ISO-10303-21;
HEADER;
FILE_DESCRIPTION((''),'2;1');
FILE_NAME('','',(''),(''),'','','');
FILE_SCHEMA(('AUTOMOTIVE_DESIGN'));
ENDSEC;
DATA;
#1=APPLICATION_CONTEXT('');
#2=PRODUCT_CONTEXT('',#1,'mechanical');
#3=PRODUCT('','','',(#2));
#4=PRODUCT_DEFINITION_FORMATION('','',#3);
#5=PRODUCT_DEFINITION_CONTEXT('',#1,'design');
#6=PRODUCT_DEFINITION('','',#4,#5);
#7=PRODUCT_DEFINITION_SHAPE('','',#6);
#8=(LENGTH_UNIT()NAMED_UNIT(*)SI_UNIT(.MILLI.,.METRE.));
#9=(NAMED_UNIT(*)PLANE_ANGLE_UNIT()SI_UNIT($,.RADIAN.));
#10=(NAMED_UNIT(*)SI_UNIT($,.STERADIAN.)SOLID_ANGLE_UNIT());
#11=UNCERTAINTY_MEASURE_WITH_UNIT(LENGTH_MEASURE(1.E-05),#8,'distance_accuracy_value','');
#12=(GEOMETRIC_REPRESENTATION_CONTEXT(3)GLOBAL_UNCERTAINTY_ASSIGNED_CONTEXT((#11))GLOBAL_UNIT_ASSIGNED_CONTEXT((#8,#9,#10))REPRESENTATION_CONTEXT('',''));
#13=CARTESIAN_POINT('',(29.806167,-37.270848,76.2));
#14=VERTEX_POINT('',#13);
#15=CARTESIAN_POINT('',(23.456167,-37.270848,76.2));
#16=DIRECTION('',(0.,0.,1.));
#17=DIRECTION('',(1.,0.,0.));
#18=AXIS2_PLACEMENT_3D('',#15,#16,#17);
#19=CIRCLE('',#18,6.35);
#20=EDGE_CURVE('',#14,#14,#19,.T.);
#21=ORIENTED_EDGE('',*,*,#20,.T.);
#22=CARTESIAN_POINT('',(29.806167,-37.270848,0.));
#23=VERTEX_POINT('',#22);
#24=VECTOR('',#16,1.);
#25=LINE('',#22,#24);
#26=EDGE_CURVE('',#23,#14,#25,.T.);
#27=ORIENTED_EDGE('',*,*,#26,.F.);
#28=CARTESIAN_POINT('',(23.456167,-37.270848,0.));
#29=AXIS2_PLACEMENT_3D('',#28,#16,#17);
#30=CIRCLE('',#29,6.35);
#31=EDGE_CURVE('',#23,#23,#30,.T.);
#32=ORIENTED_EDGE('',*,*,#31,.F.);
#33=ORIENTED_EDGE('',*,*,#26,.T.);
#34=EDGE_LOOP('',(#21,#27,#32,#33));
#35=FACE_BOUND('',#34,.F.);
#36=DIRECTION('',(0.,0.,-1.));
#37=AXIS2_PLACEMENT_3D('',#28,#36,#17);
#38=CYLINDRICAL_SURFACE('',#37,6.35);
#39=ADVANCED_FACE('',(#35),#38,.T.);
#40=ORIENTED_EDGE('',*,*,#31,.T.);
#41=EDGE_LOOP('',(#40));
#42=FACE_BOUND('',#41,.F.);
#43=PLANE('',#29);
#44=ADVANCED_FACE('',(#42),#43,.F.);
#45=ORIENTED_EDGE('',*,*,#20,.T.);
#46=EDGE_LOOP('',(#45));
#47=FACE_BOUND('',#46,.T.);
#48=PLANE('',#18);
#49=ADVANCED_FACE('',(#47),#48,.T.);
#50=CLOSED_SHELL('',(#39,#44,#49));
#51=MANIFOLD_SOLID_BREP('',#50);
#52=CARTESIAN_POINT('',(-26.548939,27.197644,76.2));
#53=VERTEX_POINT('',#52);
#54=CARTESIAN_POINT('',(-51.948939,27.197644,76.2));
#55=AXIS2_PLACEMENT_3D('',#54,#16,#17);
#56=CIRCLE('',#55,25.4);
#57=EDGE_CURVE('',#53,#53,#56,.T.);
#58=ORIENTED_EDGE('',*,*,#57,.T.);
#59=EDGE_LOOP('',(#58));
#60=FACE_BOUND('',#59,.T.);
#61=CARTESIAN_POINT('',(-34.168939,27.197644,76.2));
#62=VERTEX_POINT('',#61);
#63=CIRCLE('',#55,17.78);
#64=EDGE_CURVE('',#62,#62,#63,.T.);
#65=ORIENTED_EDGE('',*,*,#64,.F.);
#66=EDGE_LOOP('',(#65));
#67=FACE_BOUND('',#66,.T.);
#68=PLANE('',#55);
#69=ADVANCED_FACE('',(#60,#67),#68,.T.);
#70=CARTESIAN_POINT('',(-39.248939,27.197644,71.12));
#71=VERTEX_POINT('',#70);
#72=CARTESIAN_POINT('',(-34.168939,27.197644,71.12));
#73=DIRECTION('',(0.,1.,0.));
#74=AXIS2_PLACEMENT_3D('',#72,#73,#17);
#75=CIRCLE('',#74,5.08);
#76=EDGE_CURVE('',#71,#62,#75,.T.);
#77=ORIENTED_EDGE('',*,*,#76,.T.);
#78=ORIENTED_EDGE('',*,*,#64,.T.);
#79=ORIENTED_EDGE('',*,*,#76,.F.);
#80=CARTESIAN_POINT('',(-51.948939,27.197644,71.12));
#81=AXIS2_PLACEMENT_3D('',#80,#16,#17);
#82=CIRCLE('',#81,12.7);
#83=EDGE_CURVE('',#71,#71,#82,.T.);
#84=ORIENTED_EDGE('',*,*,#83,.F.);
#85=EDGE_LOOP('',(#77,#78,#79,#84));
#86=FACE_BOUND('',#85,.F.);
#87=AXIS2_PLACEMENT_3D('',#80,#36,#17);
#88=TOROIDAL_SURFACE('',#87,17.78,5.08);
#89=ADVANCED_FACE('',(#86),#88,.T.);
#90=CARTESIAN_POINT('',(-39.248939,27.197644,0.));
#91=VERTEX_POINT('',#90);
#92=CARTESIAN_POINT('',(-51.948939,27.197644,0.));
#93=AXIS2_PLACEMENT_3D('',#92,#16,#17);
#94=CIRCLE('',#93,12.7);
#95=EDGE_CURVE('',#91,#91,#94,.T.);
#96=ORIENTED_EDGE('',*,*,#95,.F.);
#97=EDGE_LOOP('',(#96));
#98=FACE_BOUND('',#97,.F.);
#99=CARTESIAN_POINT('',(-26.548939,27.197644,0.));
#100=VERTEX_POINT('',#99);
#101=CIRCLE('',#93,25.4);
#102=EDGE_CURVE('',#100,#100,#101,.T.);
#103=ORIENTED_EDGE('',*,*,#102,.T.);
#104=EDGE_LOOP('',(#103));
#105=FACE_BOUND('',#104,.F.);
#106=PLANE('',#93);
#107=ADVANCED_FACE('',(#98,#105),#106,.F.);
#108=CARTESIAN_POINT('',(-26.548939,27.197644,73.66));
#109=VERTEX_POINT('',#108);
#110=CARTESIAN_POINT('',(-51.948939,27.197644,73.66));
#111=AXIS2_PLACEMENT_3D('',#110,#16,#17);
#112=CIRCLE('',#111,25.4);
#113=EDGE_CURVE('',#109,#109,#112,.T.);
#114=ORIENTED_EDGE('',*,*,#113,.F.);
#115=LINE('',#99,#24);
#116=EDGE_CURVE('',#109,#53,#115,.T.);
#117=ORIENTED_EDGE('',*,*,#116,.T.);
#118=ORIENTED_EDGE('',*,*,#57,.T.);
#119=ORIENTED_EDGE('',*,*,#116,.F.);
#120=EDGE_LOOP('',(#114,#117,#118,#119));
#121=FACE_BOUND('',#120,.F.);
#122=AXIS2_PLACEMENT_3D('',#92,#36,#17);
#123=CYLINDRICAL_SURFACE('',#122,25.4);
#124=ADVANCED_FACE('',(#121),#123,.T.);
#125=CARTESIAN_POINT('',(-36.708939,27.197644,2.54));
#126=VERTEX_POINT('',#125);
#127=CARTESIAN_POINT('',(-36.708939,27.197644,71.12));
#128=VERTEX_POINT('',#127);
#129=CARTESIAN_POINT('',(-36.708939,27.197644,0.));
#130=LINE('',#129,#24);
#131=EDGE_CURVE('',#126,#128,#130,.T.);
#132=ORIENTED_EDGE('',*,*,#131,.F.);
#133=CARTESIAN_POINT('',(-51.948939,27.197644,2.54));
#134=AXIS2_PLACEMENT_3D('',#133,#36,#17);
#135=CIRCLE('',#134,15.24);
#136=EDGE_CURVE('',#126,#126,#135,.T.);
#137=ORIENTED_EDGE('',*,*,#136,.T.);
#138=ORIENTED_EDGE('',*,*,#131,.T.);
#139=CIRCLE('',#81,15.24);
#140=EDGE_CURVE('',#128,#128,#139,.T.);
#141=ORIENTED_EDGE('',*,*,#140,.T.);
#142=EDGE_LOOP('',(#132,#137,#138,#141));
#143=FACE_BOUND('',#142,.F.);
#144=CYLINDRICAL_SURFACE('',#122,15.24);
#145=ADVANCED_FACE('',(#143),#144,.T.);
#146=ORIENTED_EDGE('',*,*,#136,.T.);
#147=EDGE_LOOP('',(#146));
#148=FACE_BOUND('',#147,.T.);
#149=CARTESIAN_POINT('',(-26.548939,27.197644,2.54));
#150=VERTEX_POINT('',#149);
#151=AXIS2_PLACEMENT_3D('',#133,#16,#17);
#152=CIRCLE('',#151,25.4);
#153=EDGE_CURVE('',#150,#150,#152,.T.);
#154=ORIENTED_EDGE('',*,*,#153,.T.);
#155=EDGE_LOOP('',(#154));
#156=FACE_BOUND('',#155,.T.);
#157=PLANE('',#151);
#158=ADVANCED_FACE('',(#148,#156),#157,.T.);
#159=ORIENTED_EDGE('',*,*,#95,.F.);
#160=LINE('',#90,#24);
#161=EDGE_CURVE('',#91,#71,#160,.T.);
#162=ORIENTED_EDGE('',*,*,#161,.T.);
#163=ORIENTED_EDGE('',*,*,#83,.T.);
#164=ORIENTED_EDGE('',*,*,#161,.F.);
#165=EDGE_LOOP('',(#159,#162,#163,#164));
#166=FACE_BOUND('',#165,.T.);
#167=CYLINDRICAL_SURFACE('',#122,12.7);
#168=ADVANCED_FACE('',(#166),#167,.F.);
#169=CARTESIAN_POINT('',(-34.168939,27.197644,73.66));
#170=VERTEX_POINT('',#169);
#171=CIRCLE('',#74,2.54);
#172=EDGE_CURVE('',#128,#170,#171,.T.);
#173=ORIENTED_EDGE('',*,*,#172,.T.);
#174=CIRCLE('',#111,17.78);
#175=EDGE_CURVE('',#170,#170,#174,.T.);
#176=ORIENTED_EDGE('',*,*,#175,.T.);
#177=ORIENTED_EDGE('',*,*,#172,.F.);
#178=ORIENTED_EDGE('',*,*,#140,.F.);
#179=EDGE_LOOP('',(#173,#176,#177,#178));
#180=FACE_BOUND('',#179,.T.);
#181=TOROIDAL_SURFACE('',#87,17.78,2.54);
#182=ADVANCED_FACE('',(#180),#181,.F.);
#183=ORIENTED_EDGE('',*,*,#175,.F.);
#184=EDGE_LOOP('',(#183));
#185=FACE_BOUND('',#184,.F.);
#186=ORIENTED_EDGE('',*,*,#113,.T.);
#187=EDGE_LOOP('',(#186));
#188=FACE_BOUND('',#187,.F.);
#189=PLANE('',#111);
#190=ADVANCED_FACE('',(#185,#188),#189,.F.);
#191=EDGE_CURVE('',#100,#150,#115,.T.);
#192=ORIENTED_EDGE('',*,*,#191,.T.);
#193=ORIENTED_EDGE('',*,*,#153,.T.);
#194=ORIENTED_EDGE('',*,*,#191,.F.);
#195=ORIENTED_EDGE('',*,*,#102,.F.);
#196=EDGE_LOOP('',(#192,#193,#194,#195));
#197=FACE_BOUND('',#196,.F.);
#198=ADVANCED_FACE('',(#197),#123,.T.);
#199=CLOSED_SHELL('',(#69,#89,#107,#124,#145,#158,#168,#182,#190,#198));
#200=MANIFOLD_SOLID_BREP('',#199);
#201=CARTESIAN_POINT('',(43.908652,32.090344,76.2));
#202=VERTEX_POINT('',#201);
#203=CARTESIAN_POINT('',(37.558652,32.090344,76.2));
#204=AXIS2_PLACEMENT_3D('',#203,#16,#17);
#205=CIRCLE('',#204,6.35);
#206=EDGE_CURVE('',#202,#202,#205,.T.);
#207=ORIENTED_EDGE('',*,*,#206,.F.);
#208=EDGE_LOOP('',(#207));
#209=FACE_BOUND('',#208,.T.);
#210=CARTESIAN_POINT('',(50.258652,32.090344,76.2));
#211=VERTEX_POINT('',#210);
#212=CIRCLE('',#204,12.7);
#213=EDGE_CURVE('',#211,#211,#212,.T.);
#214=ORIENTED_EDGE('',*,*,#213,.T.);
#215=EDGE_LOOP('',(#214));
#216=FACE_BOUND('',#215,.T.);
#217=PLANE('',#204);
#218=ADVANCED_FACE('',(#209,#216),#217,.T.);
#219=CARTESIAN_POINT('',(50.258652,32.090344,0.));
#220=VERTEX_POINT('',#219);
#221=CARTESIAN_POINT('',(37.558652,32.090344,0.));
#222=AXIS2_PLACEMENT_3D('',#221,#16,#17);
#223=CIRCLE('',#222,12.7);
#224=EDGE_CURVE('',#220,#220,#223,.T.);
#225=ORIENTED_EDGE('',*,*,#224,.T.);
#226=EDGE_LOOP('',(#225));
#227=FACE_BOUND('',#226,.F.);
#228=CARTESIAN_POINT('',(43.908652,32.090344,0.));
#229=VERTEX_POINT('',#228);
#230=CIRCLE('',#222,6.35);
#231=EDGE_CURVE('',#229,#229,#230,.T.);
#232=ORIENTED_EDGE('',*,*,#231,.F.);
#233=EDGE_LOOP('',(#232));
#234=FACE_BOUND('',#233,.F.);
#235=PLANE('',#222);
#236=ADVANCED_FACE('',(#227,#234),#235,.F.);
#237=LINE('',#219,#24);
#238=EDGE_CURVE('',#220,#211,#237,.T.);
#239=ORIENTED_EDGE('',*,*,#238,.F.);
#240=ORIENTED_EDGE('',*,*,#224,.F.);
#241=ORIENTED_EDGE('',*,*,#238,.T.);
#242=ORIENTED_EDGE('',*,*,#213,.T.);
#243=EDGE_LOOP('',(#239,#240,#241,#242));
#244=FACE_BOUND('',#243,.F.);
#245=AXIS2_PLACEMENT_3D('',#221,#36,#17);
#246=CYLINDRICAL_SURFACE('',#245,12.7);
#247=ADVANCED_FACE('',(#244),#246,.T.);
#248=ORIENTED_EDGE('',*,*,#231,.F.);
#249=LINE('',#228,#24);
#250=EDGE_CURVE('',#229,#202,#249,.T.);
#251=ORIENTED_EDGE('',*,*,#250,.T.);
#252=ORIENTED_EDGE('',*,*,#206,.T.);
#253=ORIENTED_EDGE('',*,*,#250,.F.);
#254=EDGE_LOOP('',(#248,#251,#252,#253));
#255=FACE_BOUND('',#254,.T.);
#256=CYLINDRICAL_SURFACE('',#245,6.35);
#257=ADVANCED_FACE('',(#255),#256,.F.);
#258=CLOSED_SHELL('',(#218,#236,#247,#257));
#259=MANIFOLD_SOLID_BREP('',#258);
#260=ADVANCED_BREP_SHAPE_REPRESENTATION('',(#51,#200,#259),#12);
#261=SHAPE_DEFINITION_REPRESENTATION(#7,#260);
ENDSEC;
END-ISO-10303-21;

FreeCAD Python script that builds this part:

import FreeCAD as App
import Part
import Sketcher
from FreeCAD import Vector
Q = App.Units.Quantity


def edges_at(feature, points):
    """Names of the edges that pass closest to the given points."""
    edges = feature.Shape.Edges
    near = lambda p: min(range(len(edges)), key=lambda i: edges[i].distToShape(Part.Vertex(*p))[0])
    return sorted({f"Edge{near(p) + 1}" for p in points})


def faces_at(feature, points):
    """Names of the faces that lie closest to the given points."""
    faces = feature.Shape.Faces
    near = lambda p: min(range(len(faces)), key=lambda i: faces[i].distToShape(Part.Vertex(*p))[0])
    return sorted({f"Face{near(p) + 1}" for p in points})

doc = App.newDocument("Part")
params = doc.addObject("Spreadsheet::Sheet", "Params")
for row, (alias, value) in enumerate([
    ("sketch1_diameter", "2 in"),
    ("sketch1_diameter2", "1 in"),
    ("pad1_length", "3 in"),
    ("fillet_radius", "0.2 in"),
    ("thickness_wall", "0.1 in"),
    ("sketch2_diameter", "1 in"),
    ("sketch2_diameter2", "0.5 in"),
    ("pad2_length", "3 in"),
    ("sketch3_diameter", "0.5 in"),
    ("pad3_length", "3 in"),
], start=1):
    params.set(f"A{row}", alias)
    params.set(f"B{row}", "=" + value)
    params.setAlias(f"B{row}", alias)

body = doc.addObject("PartDesign::Body", "Body")

# Sketch on XY plane
sketch1 = doc.addObject("Sketcher::SketchObject", "Sketch")
body.addObject(sketch1)
sketch1.AttachmentSupport = (doc.XY_Plane, [""])
sketch1.MapMode = "FlatFace"
sketch1.addGeometry([
    Part.Circle(Vector(-51.948939, 27.197644, 0), Vector(0, 0, 1), 25.4),
    Part.Circle(Vector(-51.948939, 27.197644, 0), Vector(0, 0, 1), 12.7),
], False)
sketch1.addConstraint([
    Sketcher.Constraint("Coincident", 1, 3, 0, 3),
    Sketcher.Constraint("Diameter", 0, Q("2 in")),
    Sketcher.Constraint("Diameter", 1, Q("1 in")),
    Sketcher.Constraint("DistanceX", 0, 3, -1, 1, Q("51.948939 mm")),
    Sketcher.Constraint("DistanceY", -1, 1, 0, 3, Q("27.197644 mm")),
])
sketch1.setExpression("Constraints[1]", "Params.sketch1_diameter")
sketch1.setExpression("Constraints[2]", "Params.sketch1_diameter2")
pad1 = doc.addObject("PartDesign::Pad", "Pad")
body.addObject(pad1)
pad1.Profile = sketch1
pad1.setExpression("Length", "Params.pad1_length")
doc.recompute()

fillet = doc.addObject("PartDesign::Fillet", "Fillet")
body.addObject(fillet)
fillet.Base = (pad1, edges_at(pad1, [(-64.649, 27.198, 76.2)]))
fillet.setExpression("Radius", "Params.fillet_radius")
doc.recompute()

thickness = doc.addObject("PartDesign::Thickness", "Thickness")
body.addObject(thickness)
thickness.Base = (fillet, faces_at(fillet, [(-77.349, 27.198, 38.1)]))
thickness.setExpression("Value", "Params.thickness_wall")
thickness.Reversed = True
thickness.Join = "Arc"
body2 = doc.addObject("PartDesign::Body", "Body001")

# Sketch on XY plane
sketch2 = doc.addObject("Sketcher::SketchObject", "Sketch001")
body2.addObject(sketch2)
sketch2.AttachmentSupport = (doc.getObject("XY_Plane001"), [""])
sketch2.MapMode = "FlatFace"
sketch2.addGeometry([
    Part.Circle(Vector(37.558652, 32.090344, 0), Vector(0, 0, 1), 12.7),
    Part.Circle(Vector(37.558652, 32.090344, 0), Vector(0, 0, 1), 6.35),
], False)
sketch2.addConstraint([
    Sketcher.Constraint("Coincident", 1, 3, 0, 3),
    Sketcher.Constraint("Diameter", 0, Q("1 in")),
    Sketcher.Constraint("Diameter", 1, Q("0.5 in")),
    Sketcher.Constraint("DistanceX", -1, 1, 0, 3, Q("37.558652 mm")),
    Sketcher.Constraint("DistanceY", -1, 1, 0, 3, Q("32.090344 mm")),
])
sketch2.setExpression("Constraints[1]", "Params.sketch2_diameter")
sketch2.setExpression("Constraints[2]", "Params.sketch2_diameter2")
pad2 = doc.addObject("PartDesign::Pad", "Pad001")
body2.addObject(pad2)
pad2.Profile = sketch2
pad2.setExpression("Length", "Params.pad2_length")
body3 = doc.addObject("PartDesign::Body", "Body002")

# Sketch on XY plane
sketch3 = doc.addObject("Sketcher::SketchObject", "Sketch002")
body3.addObject(sketch3)
sketch3.AttachmentSupport = (doc.getObject("XY_Plane002"), [""])
sketch3.MapMode = "FlatFace"
sketch3.addGeometry(Part.Circle(Vector(23.456167, -37.270848, 0), Vector(0, 0, 1), 6.35), False)
sketch3.addConstraint([
    Sketcher.Constraint("Diameter", 0, Q("0.5 in")),
    Sketcher.Constraint("DistanceX", -1, 1, 0, 3, Q("23.456167 mm")),
    Sketcher.Constraint("DistanceY", 0, 3, -1, 1, Q("37.270848 mm")),
])
sketch3.setExpression("Constraints[0]", "Params.sketch3_diameter")
pad3 = doc.addObject("PartDesign::Pad", "Pad002")
body3.addObject(pad3)
pad3.Profile = sketch3
pad3.setExpression("Length", "Params.pad3_length")

doc.recompute()
